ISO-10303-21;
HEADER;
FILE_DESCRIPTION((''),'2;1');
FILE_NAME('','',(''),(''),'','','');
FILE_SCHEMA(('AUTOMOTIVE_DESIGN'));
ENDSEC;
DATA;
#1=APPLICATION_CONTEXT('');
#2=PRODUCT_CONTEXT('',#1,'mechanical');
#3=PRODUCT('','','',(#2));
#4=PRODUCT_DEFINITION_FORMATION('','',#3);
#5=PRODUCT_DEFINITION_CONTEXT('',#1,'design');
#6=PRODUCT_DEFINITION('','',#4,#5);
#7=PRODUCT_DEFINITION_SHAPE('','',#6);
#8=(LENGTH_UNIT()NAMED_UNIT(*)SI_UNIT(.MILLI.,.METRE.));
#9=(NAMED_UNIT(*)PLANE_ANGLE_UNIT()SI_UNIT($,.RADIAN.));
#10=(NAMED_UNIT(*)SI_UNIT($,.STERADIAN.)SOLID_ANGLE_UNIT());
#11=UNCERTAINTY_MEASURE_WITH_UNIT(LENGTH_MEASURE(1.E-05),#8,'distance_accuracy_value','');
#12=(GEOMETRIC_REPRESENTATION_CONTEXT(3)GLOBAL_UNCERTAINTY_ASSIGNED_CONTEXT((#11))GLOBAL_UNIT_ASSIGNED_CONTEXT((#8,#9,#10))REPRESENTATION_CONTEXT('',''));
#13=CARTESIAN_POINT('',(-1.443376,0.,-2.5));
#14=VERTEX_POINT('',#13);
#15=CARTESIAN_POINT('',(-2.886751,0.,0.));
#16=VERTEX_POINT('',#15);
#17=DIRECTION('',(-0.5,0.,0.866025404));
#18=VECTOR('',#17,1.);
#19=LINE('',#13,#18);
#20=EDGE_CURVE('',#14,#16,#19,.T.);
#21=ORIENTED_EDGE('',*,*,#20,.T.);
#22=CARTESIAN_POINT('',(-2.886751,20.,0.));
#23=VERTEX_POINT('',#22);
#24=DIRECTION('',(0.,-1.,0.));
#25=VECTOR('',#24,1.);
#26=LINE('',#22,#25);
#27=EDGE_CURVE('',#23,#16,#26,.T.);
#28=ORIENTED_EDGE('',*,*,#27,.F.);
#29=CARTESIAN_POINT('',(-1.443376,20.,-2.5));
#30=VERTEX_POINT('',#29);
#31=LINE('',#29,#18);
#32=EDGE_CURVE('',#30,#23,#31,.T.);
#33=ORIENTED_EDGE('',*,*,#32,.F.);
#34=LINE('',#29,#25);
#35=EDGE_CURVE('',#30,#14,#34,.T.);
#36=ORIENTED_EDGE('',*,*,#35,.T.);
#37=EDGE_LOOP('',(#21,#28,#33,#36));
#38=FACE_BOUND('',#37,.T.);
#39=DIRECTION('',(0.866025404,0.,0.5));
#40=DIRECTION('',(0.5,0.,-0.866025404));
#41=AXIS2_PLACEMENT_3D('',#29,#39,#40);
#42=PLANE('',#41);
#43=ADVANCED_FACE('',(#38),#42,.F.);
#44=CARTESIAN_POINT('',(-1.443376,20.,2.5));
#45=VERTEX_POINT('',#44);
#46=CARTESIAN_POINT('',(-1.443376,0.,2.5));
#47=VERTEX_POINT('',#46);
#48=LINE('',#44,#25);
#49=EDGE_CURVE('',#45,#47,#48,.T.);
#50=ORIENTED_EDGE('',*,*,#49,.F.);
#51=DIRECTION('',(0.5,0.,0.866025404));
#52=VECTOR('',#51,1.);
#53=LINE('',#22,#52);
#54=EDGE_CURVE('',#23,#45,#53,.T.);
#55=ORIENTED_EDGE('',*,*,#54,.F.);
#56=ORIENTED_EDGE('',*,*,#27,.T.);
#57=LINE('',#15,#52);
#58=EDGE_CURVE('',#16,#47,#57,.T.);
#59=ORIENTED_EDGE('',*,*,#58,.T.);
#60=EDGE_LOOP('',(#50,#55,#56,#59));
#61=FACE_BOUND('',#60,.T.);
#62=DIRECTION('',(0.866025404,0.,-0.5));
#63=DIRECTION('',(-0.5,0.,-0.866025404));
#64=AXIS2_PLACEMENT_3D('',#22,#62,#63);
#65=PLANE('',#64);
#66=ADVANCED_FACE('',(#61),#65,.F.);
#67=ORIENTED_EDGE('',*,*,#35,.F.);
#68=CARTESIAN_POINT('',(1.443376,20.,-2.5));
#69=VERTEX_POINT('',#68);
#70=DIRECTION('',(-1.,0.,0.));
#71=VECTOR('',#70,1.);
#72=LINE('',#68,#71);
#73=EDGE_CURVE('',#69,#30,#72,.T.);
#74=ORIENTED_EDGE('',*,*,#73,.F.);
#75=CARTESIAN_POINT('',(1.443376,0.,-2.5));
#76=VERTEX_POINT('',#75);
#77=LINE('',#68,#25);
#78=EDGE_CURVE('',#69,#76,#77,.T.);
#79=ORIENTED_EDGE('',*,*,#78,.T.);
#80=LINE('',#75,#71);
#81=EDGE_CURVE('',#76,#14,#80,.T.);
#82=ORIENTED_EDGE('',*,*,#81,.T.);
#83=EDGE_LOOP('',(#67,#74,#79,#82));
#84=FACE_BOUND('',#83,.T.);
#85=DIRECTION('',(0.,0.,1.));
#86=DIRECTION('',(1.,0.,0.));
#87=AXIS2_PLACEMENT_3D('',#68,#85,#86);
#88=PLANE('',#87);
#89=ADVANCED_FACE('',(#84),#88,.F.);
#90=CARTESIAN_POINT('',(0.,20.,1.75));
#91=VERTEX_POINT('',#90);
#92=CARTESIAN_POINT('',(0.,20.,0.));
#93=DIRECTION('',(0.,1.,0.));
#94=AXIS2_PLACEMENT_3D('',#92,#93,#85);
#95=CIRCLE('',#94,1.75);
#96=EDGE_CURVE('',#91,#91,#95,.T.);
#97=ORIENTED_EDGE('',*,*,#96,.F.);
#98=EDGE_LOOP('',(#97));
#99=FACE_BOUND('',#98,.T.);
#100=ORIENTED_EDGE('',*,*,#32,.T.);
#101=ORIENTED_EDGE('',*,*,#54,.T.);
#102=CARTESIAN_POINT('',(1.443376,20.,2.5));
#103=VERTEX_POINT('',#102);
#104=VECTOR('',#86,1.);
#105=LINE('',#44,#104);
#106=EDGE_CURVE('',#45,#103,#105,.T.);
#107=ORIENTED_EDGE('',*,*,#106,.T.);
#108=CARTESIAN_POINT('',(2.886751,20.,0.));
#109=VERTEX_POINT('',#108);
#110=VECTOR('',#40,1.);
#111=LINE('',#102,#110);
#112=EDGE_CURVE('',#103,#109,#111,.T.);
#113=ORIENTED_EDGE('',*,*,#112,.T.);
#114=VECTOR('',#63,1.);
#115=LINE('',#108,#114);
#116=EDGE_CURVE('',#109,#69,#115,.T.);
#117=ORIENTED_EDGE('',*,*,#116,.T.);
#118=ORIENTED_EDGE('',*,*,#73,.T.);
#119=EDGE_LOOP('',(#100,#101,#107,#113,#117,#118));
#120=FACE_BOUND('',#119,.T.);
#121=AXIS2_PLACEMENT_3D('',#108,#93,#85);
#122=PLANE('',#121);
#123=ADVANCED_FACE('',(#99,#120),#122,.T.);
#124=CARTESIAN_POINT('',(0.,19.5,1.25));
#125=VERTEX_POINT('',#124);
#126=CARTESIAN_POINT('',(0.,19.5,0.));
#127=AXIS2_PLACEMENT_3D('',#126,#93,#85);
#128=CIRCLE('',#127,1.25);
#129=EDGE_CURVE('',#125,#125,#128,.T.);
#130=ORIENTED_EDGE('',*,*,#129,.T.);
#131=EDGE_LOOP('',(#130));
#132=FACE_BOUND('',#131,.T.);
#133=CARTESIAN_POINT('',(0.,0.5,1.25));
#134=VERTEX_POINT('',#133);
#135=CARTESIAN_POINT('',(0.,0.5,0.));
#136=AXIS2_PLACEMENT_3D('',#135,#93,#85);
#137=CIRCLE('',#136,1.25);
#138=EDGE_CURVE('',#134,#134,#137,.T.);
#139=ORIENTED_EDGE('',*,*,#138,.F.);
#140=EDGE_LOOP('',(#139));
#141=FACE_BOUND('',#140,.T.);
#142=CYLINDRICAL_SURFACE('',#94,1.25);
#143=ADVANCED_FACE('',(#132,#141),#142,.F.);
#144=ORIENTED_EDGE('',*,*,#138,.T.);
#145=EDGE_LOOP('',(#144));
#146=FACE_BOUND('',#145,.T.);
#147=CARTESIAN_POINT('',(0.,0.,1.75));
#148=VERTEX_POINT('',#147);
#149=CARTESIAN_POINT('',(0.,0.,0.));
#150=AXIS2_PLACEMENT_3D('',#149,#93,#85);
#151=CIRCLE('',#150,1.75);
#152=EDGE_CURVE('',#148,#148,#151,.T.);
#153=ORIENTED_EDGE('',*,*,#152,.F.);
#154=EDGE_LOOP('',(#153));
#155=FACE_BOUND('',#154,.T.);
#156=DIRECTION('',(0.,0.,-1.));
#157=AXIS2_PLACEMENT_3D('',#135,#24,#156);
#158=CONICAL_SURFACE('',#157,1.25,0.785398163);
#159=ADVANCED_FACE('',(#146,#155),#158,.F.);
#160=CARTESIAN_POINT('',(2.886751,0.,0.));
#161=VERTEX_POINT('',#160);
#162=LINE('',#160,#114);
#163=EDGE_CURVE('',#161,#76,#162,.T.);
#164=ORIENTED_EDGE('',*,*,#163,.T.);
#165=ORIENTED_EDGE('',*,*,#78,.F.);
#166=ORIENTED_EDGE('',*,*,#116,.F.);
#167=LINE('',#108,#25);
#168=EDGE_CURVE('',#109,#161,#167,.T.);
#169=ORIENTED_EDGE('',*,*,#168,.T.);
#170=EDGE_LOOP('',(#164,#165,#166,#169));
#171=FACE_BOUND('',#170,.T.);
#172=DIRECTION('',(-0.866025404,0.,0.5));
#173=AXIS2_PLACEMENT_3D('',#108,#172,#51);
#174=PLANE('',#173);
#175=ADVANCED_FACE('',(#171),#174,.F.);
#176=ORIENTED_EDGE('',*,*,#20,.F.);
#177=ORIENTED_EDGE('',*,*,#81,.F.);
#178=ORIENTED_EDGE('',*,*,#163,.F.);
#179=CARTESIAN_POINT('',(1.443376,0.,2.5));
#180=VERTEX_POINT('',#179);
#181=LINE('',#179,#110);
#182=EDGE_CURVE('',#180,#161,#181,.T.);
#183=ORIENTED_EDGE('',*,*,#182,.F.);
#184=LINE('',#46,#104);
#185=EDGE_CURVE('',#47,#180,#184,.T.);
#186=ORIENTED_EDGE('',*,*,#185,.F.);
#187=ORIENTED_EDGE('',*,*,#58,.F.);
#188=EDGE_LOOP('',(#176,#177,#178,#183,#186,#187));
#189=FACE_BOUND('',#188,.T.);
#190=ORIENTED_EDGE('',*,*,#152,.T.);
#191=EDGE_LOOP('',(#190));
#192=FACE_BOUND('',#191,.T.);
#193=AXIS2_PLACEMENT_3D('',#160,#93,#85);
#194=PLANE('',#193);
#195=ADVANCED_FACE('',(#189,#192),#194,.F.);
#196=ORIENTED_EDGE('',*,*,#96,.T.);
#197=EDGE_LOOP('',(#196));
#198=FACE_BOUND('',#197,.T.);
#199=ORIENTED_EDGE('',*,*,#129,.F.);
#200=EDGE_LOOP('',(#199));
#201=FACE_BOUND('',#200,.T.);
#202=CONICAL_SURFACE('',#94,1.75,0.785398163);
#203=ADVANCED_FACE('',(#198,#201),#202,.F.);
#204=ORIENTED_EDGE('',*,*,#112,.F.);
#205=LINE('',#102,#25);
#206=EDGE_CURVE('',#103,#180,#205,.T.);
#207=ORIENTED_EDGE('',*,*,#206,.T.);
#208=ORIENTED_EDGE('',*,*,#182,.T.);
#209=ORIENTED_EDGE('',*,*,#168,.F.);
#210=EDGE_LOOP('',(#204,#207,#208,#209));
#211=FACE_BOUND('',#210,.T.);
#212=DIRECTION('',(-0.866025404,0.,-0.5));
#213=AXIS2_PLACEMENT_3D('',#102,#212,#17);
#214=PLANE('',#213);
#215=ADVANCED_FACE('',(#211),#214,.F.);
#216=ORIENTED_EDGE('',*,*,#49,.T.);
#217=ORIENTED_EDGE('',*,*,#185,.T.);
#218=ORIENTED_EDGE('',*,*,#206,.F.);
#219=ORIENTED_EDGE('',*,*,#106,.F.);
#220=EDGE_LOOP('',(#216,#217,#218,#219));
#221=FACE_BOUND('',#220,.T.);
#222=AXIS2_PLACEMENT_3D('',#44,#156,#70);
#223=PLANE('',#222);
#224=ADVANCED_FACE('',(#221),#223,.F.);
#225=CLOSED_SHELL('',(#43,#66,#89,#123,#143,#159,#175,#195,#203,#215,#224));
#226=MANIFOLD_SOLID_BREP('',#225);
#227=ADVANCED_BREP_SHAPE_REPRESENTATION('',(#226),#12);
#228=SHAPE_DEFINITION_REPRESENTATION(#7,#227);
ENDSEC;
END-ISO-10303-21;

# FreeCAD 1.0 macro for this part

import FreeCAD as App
import Part
import Sketcher
from FreeCAD import Vector
Q = App.Units.Quantity


def add_polygon(sketch, points):
    """Adds a closed chain of lines whose ends are joined by coincident constraints."""
    first, n = sketch.GeometryCount, len(points)
    for a, b in zip(points, points[1:] + points[:1]):
        sketch.addGeometry(Part.LineSegment(App.Vector(*a, 0), App.Vector(*b, 0)), False)
    for i in range(n):
        sketch.addConstraint(Sketcher.Constraint("Coincident", first + i, 2, first + (i + 1) % n, 1))

doc = App.newDocument("Part")
params = doc.addObject("Spreadsheet::Sheet", "Params")
for row, (alias, value) in enumerate([
    ("pad1_length", "20 mm"),
    ("sketch2_width", "20 mm"),
    ("sketch2_width2", "19 mm"),
    ("sketch2_height", "1.75 mm"),
    ("groove_angle", "360 deg"),
], start=1):
    params.set(f"A{row}", alias)
    params.set(f"B{row}", "=" + value)
    params.setAlias(f"B{row}", alias)

body = doc.addObject("PartDesign::Body", "Body")

# Sketch on XZ plane
sketch1 = body.newObject("Sketcher::SketchObject", "Sketch")
sketch1.AttachmentSupport = (doc.getObject("XZ_Plane"), [""])
sketch1.MapMode = "FlatFace"
add_polygon(sketch1, [(2.9, 0), (1.4, -2.5), (-1.4, -2.5), (-2.9, 0), (-1.4, 2.5), (1.4, 2.5)])  # lines 0-5
sketch1.addConstraint(Sketcher.Constraint("Horizontal", 1))
sketch1.addConstraint(Sketcher.Constraint("Horizontal", 4))
sketch1.addConstraint(Sketcher.Constraint("Symmetric", 0, 2, 3, 2, -1, 1))
sketch1.addConstraint(Sketcher.Constraint("Symmetric", 2, 2, 5, 2, -1, 1))
sketch1.addConstraint(Sketcher.Constraint("PointOnObject", 2, 2, -1))
sketch1.addConstraint(Sketcher.Constraint("Parallel", 2, 5))
sketch1.addConstraint(Sketcher.Constraint("Vertical", 1, 2, 3, 2))
sketch1.addConstraint(Sketcher.Constraint("Angle", 0, Q("-120 deg")))
sketch1.addConstraint(Sketcher.Constraint("DistanceY", 1, 2, 3, 2, 5.0))
sketch1.addConstraint(Sketcher.Constraint("DistanceX", 1, 2, 1, 1, 2.886751))
pad1 = body.newObject("PartDesign::Pad", "Pad")
pad1.Profile = sketch1
pad1.setExpression("Length", "Params.pad1_length")
pad1.Reversed = True

# Sketch on YZ plane
sketch2 = body.newObject("Sketcher::SketchObject", "Sketch001")
sketch2.AttachmentSupport = (doc.getObject("YZ_Plane"), [""])
sketch2.MapMode = "FlatFace"
add_polygon(sketch2, [(0, 0), (20, 0), (20, 1.8), (19.5, 1.2), (0.5, 1.2), (0, 1.8)])  # lines 0-5
sketch2.addConstraint(Sketcher.Constraint("Horizontal", 0))
sketch2.addConstraint(Sketcher.Constraint("Vertical", 1))
sketch2.addConstraint(Sketcher.Constraint("Horizontal", 3))
sketch2.addConstraint(Sketcher.Constraint("Vertical", 5))
sketch2.addConstraint(Sketcher.Constraint("Coincident", 5, 2, -1, 1))
sketch2.addConstraint(Sketcher.Constraint("Perpendicular", 2, 4))
sketch2.addConstraint(Sketcher.Constraint("Horizontal", 1, 2, 4, 2))
sketch2.addConstraint(Sketcher.Constraint("Equal", 2, 4))
sketch2.addConstraint(Sketcher.Constraint("DistanceX", 0, 1, 0, 2, 20.0))
sketch2.addConstraint(Sketcher.Constraint("DistanceX", 3, 2, 3, 1, 19.0))
sketch2.addConstraint(Sketcher.Constraint("DistanceY", 1, 1, 1, 2, 1.75))
sketch2.setExpression("Constraints[14]", "Params.sketch2_width")
sketch2.setExpression("Constraints[15]", "Params.sketch2_width2")
sketch2.setExpression("Constraints[16]", "Params.sketch2_height")
groove = body.newObject("PartDesign::Groove", "Groove")
groove.Profile = sketch2
groove.ReferenceAxis = (sketch2, ["H_Axis"])
groove.setExpression("Angle", "Params.groove_angle")

doc.recompute()
